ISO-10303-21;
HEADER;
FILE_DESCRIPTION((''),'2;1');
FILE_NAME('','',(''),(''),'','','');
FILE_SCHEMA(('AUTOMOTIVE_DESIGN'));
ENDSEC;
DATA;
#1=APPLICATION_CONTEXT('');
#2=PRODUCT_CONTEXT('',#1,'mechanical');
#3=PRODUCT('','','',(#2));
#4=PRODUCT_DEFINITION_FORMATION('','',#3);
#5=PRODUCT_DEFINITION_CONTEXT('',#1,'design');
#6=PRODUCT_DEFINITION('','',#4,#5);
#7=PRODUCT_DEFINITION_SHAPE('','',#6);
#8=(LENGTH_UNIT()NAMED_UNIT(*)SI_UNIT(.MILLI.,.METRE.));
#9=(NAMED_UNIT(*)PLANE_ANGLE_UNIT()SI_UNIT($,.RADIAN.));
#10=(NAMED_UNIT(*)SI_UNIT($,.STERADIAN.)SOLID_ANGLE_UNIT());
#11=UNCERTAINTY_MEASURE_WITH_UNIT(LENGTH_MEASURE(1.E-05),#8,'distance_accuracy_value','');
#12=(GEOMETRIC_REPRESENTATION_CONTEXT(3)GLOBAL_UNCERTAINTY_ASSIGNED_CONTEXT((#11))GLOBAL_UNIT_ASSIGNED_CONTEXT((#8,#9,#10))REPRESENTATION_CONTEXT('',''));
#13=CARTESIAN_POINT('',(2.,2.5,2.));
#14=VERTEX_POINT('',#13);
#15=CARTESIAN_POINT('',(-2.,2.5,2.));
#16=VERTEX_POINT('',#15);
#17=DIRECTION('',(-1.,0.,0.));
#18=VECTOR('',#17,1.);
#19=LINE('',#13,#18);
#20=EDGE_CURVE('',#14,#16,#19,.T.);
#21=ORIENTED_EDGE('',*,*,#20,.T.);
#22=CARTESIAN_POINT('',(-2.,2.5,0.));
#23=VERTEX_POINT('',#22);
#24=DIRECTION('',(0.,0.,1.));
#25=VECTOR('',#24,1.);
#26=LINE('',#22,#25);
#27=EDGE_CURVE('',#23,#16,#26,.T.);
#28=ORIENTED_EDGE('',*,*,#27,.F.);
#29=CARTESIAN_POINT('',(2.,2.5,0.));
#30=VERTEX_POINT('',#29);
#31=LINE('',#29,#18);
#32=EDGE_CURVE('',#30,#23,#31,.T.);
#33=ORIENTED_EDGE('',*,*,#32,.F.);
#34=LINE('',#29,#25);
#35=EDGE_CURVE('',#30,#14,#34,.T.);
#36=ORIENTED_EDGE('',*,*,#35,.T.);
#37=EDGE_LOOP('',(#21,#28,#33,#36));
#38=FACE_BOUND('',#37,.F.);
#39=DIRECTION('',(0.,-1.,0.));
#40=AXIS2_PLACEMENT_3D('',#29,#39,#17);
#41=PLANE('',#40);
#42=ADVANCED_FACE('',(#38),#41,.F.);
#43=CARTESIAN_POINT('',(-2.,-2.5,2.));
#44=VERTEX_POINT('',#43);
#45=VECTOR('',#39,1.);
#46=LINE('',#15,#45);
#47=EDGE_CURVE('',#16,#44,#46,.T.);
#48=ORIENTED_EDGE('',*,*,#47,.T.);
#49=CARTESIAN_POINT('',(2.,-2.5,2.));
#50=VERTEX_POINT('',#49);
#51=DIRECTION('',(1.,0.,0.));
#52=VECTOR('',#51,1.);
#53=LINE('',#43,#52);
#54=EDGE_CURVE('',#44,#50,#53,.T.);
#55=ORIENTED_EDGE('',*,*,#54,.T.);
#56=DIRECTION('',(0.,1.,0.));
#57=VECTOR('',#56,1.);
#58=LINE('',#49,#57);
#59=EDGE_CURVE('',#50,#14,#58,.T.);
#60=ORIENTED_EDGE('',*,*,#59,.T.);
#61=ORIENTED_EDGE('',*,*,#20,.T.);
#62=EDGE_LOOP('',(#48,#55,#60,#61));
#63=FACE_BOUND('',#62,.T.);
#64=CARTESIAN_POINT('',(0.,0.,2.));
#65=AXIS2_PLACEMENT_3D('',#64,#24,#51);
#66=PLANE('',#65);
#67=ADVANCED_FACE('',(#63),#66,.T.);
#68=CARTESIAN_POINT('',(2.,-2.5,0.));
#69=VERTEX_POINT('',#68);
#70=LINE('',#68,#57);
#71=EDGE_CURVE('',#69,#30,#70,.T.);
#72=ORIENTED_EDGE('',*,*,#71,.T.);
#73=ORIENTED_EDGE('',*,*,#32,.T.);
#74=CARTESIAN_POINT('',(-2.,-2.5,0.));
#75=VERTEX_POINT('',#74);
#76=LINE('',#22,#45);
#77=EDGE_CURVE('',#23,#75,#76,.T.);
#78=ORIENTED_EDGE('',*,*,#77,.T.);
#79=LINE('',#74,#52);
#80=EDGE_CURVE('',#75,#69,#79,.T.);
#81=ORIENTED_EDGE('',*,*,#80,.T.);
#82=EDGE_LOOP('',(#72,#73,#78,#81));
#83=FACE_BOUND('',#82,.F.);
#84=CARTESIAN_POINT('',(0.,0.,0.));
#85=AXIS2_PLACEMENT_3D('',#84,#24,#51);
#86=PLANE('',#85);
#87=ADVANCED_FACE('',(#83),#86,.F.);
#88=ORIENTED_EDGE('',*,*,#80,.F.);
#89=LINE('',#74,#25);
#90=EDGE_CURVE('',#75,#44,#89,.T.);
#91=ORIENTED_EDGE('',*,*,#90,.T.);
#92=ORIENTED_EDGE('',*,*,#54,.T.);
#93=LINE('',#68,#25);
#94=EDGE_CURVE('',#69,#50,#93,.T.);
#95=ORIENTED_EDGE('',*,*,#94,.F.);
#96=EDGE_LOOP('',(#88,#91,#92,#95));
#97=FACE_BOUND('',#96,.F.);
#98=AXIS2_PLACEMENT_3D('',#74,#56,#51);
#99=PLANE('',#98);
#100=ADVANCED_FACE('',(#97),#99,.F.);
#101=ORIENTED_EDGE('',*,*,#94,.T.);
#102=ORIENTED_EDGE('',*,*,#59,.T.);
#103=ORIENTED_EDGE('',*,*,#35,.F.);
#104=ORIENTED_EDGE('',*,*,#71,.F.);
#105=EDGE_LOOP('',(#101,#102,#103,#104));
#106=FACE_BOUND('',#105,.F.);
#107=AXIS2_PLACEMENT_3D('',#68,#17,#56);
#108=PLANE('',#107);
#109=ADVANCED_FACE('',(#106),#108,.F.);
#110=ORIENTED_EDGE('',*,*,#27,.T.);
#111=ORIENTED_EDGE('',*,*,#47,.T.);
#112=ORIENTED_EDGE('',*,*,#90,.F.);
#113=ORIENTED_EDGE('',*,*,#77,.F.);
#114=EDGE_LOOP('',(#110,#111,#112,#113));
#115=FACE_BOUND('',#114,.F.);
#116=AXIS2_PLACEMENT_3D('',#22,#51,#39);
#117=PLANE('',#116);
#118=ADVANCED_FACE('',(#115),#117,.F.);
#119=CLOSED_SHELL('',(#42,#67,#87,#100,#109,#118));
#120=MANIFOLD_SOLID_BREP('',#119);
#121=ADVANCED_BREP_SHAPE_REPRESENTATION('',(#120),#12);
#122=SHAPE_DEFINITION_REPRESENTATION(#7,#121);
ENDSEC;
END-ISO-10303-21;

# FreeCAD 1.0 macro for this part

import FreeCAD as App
import Part
import Sketcher
Q = App.Units.Quantity

doc = App.newDocument("Part")
body = doc.addObject("PartDesign::Body", "Body")

# Sketch on XY plane
sketch1 = doc.addObject("Sketcher::SketchObject", "Sketch")
body.addObject(sketch1)
sketch1.AttachmentSupport = (doc.XY_Plane, [""])
sketch1.MapMode = "FlatFace"
sketch1.addGeometry([
    Part.LineSegment(App.Vector(-2, 2.5, 0), App.Vector(-2, -2.5, 0)),
    Part.LineSegment(App.Vector(-2, -2.5, 0), App.Vector(2, -2.5, 0)),
    Part.LineSegment(App.Vector(2, -2.5, 0), App.Vector(2, 2.5, 0)),
    Part.LineSegment(App.Vector(2, 2.5, 0), App.Vector(-2, 2.5, 0)),
], False)
sketch1.addConstraint([
    Sketcher.Constraint("Coincident", 0, 2, 1, 1),
    Sketcher.Constraint("Coincident", 1, 2, 2, 1),
    Sketcher.Constraint("Coincident", 2, 2, 3, 1),
    Sketcher.Constraint("Coincident", 3, 2, 0, 1),
    Sketcher.Constraint("Vertical", 0),
    Sketcher.Constraint("Horizontal", 1),
    Sketcher.Constraint("Vertical", 2),
    Sketcher.Constraint("Horizontal", 3),
    Sketcher.Constraint("Symmetric", 0, 2, 2, 2, -1, 1),
    Sketcher.Constraint("DistanceX", 1, 1, 1, 2, Q("4 mm")),
    Sketcher.Constraint("DistanceY", 0, 2, 0, 1, Q("5 mm")),
])
pad1 = doc.addObject("PartDesign::Pad", "Pad")
body.addObject(pad1)
pad1.Profile = sketch1
pad1.Length = 2

doc.recompute()
